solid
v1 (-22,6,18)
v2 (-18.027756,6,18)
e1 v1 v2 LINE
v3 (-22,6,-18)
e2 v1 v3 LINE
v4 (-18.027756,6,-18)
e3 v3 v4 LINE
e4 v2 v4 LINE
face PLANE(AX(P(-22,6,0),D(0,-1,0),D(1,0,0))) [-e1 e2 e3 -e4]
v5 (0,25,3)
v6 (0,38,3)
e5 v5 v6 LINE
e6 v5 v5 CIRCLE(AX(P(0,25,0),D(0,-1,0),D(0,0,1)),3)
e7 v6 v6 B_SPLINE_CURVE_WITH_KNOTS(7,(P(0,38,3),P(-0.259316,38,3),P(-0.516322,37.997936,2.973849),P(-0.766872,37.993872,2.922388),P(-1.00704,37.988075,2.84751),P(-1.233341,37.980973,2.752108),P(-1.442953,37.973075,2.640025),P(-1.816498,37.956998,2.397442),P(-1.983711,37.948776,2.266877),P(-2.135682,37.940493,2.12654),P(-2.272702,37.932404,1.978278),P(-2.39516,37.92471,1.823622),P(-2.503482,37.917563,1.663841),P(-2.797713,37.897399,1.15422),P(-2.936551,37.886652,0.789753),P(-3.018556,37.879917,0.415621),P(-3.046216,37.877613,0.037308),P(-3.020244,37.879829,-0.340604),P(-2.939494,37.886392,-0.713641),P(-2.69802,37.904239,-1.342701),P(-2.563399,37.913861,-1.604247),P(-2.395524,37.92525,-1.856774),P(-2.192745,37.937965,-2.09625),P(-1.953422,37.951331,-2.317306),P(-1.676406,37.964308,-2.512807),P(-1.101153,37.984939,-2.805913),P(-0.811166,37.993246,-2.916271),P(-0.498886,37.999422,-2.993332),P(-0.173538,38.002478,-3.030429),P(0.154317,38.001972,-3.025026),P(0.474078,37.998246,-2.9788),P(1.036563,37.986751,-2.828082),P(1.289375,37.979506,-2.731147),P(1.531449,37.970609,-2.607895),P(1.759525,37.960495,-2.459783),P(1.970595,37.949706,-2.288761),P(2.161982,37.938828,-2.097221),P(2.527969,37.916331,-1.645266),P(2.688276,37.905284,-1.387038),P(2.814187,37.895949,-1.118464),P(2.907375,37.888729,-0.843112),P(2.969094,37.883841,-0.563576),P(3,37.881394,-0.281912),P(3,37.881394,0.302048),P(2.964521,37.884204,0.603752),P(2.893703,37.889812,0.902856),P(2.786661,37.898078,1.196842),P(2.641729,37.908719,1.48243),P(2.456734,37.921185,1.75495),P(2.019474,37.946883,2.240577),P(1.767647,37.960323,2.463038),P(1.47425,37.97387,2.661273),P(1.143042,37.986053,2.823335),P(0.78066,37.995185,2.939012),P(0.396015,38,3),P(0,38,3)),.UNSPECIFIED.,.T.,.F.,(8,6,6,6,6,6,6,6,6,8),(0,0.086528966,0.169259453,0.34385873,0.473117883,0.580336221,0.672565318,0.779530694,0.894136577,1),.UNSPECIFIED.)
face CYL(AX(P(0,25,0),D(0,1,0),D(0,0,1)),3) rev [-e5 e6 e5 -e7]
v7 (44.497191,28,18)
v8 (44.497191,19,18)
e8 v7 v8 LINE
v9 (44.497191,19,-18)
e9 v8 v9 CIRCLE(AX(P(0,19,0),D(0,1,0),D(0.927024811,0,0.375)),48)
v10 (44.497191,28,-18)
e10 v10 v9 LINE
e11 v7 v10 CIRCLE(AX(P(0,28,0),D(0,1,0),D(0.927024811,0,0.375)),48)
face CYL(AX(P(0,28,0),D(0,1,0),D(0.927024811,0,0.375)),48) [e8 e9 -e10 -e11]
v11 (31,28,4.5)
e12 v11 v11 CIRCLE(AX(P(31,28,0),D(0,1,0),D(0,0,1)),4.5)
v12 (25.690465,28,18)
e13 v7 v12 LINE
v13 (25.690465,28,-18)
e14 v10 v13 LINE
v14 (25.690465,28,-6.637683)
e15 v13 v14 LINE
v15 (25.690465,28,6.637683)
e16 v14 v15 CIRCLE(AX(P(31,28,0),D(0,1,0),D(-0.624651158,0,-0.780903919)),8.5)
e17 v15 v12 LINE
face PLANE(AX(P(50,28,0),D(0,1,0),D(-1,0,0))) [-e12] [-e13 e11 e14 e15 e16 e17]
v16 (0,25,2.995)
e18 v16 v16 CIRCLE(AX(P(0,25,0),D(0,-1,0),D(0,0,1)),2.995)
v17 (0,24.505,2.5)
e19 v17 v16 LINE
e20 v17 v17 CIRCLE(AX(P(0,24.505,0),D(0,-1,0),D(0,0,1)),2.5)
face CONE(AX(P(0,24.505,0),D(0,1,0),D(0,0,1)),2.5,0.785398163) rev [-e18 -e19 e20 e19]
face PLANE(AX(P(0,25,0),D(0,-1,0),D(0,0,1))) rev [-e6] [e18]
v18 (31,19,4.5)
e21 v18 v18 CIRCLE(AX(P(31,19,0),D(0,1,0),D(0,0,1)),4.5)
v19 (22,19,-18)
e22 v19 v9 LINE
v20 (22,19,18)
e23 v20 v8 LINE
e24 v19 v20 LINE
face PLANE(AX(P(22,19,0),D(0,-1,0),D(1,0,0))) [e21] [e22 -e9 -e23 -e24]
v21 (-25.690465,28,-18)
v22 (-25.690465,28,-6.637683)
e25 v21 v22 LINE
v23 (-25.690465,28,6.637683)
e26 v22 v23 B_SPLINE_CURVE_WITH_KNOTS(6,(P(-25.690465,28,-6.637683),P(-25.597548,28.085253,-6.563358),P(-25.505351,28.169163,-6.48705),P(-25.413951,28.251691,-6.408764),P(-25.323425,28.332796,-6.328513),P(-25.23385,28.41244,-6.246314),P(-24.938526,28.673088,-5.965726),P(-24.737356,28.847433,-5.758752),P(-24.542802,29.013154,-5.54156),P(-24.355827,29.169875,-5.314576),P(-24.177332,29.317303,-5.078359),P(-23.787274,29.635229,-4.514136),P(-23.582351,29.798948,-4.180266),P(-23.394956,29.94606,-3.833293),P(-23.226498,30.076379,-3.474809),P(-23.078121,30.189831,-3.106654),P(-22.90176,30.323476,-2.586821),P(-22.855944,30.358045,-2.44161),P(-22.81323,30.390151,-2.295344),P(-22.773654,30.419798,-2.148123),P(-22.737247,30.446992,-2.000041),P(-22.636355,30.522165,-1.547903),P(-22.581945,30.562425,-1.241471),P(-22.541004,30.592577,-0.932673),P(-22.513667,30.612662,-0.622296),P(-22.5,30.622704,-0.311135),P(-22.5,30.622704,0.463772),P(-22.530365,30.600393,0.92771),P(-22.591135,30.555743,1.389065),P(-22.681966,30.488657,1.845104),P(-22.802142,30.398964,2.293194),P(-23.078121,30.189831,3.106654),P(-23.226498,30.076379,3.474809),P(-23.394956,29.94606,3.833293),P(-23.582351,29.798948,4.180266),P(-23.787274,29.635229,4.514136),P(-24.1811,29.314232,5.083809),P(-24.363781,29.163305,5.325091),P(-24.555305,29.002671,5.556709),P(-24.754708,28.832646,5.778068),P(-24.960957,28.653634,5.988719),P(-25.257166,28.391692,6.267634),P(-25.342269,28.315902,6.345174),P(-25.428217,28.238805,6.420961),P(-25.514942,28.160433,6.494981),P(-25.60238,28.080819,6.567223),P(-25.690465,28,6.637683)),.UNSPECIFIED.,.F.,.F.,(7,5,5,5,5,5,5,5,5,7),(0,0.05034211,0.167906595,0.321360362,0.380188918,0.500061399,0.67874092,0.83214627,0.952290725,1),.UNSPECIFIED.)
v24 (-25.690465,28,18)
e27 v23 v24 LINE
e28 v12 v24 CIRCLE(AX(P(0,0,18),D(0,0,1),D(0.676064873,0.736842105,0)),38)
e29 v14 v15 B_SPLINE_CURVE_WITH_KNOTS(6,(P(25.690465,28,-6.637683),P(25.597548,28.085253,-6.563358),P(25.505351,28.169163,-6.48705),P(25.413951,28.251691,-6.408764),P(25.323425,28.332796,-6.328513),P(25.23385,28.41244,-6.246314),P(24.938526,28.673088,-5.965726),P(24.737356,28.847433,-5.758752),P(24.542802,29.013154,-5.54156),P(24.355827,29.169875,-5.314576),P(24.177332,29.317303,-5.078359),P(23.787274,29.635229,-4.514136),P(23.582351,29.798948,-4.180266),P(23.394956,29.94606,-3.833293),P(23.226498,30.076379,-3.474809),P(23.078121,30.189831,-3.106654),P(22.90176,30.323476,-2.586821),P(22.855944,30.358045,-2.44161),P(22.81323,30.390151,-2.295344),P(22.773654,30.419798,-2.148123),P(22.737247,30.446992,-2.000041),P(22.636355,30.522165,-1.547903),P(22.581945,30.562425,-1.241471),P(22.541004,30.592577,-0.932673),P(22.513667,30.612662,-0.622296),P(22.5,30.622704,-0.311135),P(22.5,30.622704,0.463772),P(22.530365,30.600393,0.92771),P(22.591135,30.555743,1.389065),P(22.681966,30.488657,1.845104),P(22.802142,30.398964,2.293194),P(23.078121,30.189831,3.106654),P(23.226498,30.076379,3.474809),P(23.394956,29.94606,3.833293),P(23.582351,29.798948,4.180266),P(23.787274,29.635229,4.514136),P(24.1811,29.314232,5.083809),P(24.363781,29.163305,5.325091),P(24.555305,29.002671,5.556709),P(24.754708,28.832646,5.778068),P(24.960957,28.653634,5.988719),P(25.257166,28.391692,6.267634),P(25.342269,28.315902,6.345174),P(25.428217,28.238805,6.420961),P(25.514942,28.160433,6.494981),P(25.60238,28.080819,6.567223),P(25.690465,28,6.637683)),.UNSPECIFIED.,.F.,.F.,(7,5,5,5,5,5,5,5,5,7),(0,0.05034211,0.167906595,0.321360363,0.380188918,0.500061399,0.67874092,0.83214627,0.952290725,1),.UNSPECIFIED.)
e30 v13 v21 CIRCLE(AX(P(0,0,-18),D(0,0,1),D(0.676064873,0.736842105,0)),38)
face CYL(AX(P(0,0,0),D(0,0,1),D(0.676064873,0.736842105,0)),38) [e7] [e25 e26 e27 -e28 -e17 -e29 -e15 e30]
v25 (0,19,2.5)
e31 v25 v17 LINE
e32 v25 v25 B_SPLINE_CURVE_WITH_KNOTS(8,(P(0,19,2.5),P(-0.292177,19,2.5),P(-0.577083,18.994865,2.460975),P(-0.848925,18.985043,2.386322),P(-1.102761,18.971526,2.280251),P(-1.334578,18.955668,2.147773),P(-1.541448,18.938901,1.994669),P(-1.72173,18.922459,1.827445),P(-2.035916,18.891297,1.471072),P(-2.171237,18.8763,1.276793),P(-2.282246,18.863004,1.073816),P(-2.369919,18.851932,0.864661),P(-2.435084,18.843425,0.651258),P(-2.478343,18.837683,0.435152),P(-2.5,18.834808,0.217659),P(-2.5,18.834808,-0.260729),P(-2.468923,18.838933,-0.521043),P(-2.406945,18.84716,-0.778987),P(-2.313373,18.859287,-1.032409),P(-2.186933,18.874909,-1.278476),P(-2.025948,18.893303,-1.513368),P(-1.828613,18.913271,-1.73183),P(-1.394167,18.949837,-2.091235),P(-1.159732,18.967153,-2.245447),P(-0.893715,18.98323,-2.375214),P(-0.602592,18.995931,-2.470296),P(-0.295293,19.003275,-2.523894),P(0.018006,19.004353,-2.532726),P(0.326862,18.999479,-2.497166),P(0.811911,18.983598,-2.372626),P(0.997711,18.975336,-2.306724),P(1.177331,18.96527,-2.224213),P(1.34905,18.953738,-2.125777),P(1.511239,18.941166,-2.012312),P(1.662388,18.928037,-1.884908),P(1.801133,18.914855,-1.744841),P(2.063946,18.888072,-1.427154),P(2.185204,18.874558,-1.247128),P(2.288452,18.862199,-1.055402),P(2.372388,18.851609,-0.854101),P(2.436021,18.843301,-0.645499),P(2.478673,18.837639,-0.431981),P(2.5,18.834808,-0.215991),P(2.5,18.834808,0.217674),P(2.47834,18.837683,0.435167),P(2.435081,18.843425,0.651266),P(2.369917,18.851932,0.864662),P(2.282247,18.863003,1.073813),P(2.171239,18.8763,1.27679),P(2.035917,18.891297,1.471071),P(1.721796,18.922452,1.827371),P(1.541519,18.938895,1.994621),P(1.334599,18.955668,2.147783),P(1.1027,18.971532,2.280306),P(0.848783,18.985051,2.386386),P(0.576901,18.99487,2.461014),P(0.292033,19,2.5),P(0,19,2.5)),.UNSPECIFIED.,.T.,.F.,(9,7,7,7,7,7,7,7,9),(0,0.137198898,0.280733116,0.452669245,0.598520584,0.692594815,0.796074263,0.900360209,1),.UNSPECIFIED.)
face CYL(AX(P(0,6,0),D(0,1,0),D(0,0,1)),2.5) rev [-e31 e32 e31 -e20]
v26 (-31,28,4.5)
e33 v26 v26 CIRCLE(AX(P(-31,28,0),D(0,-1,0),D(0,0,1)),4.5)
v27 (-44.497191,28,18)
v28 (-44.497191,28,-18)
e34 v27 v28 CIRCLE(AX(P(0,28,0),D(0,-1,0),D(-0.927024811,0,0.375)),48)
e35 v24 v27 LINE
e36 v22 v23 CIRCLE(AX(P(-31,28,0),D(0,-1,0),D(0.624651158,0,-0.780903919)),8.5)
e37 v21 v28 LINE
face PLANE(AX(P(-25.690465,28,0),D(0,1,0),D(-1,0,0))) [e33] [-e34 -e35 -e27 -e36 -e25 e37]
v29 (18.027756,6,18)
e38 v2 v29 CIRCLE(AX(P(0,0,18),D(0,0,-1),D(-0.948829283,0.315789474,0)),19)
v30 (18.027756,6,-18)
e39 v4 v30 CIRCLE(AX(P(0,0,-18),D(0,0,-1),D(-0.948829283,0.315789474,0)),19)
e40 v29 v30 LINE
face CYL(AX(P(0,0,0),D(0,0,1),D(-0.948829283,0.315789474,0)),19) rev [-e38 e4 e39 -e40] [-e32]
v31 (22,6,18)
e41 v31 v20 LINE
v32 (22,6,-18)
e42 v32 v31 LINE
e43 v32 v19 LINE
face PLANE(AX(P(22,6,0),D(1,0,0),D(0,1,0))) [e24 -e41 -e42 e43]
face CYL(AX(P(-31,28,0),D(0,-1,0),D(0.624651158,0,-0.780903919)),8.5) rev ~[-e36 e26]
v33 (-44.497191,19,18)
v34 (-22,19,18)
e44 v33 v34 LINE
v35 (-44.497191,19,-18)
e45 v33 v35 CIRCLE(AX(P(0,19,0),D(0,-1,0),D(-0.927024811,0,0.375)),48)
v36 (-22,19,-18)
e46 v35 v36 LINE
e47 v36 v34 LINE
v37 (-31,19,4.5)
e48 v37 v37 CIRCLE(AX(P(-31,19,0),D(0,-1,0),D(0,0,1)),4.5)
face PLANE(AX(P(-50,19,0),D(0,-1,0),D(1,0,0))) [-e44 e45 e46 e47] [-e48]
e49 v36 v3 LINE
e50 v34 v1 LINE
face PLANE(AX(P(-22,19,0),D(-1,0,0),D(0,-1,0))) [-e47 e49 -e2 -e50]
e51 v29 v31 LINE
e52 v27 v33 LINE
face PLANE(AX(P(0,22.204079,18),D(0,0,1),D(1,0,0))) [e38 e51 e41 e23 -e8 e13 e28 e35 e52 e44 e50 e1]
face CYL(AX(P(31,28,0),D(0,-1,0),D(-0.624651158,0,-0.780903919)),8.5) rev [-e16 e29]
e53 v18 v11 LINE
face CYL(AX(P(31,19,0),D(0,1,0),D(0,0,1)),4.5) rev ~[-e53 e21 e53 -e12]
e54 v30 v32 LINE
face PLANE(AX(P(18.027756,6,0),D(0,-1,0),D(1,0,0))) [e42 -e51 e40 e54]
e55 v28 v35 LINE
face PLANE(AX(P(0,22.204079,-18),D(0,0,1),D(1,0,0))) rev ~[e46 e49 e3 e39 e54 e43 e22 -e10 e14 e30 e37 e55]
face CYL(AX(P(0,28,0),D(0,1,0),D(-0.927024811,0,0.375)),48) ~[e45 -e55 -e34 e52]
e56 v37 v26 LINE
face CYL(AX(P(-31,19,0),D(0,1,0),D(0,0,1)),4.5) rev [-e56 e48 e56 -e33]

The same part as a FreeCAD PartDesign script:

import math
import FreeCAD as App
import Part
import Sketcher
from FreeCAD import Vector
Q = App.Units.Quantity

doc = App.newDocument("Part")
body = doc.addObject("PartDesign::Body", "Body")

# Sketch on XY plane
sketch1 = doc.addObject("Sketcher::SketchObject", "Sketch")
body.addObject(sketch1)
sketch1.AttachmentSupport = (doc.XY_Plane, [""])
sketch1.MapMode = "FlatFace"
sketch1.addGeometry([
    Part.LineSegment(Vector(18.027756, 6, 0), Vector(22, 6, 0)),  # 0
    Part.LineSegment(Vector(22, 6, 0), Vector(22, 19, 0)),  # 1
    Part.LineSegment(Vector(22, 19, 0), Vector(50, 19, 0)),  # 2
    Part.LineSegment(Vector(50, 19, 0), Vector(50, 28, 0)),  # 3
    Part.LineSegment(Vector(50, 28, 0), Vector(25.690465, 28, 0)),  # 4
    Part.ArcOfCircle(Part.Circle(Vector(0, 0, 0), Vector(0, 0, 1), 38), math.radians(47.463102), math.radians(132.536898)),  # 5
    Part.LineSegment(Vector(-25.690465, 28, 0), Vector(-50, 28, 0)),  # 6
    Part.LineSegment(Vector(-50, 28, 0), Vector(-50, 19, 0)),  # 7
    Part.LineSegment(Vector(-50, 19, 0), Vector(-22, 19, 0)),  # 8
    Part.LineSegment(Vector(-22, 19, 0), Vector(-22, 6, 0)),  # 9
    Part.LineSegment(Vector(-22, 6, 0), Vector(-18.027756, 6, 0)),  # 10
    Part.ArcOfCircle(Part.Circle(Vector(0, 0, 0), Vector(0, 0, 1), 19), math.radians(18.40848), math.radians(161.59152)),  # 11
], False)
sketch1.addConstraint([
    Sketcher.Constraint("Coincident", 0, 2, 1, 1),
    Sketcher.Constraint("Coincident", 1, 2, 2, 1),
    Sketcher.Constraint("Coincident", 2, 2, 3, 1),
    Sketcher.Constraint("Coincident", 3, 2, 4, 1),
    Sketcher.Constraint("Coincident", 4, 2, 5, 1),
    Sketcher.Constraint("Coincident", 5, 2, 6, 1),
    Sketcher.Constraint("Coincident", 6, 2, 7, 1),
    Sketcher.Constraint("Coincident", 7, 2, 8, 1),
    Sketcher.Constraint("Coincident", 8, 2, 9, 1),
    Sketcher.Constraint("Coincident", 9, 2, 10, 1),
    Sketcher.Constraint("Coincident", 10, 2, 11, 2),
    Sketcher.Constraint("Coincident", 11, 1, 0, 1),
    Sketcher.Constraint("Horizontal", 0),
    Sketcher.Constraint("Vertical", 1),
    Sketcher.Constraint("Horizontal", 2),
    Sketcher.Constraint("Vertical", 3),
    Sketcher.Constraint("Horizontal", 4),
    Sketcher.Constraint("Horizontal", 6),
    Sketcher.Constraint("Vertical", 7),
    Sketcher.Constraint("Horizontal", 8),
    Sketcher.Constraint("Vertical", 9),
    Sketcher.Constraint("Horizontal", 10),
    Sketcher.Constraint("Coincident", 5, 3, -1, 1),
    Sketcher.Constraint("Coincident", 11, 3, -1, 1),
    Sketcher.Constraint("Symmetric", 3, 2, 6, 2, -2),
    Sketcher.Constraint("Symmetric", 1, 2, 8, 2, -2),
    Sketcher.Constraint("Horizontal", 0, 2, 9, 2),
    Sketcher.Constraint("Radius", 5, Q("38 mm")),
    Sketcher.Constraint("Radius", 11, Q("19 mm")),
    Sketcher.Constraint("DistanceX", 2, 1, 2, 2, Q("28 mm")),
    Sketcher.Constraint("DistanceY", 1, 1, 1, 2, Q("13 mm")),
    Sketcher.Constraint("DistanceY", 3, 1, 3, 2, Q("9 mm")),
    Sketcher.Constraint("DistanceX", -1, 1, 0, 2, Q("22 mm")),
    Sketcher.Constraint("DistanceY", -1, 1, 0, 2, Q("6 mm")),
])
pad1 = doc.addObject("PartDesign::Pad", "Pad")
body.addObject(pad1)
pad1.Profile = sketch1
pad1.Length = 36
pad1.Midplane = True

# Sketch on XZ plane
sketch2 = doc.addObject("Sketcher::SketchObject", "Sketch001")
body.addObject(sketch2)
sketch2.AttachmentSupport = (doc.XZ_Plane, [""])
sketch2.MapMode = "FlatFace"
sketch2.AttachmentOffset = App.Placement(Vector(0, 0, -28), App.Rotation())
sketch2.addGeometry([
    Part.LineSegment(Vector(-44.497191, -18, 0), Vector(-50, -18, 0)),
    Part.LineSegment(Vector(-50, -18, 0), Vector(-50, 18, 0)),
    Part.LineSegment(Vector(-50, 18, 0), Vector(-44.497191, 18, 0)),
    Part.ArcOfCircle(Part.Circle(Vector(0, 0, 0), Vector(0, 0, 1), 48), math.radians(157.975687), math.radians(202.024313)),
], False)
sketch2.addConstraint([
    Sketcher.Constraint("Coincident", 0, 2, 1, 1),
    Sketcher.Constraint("Coincident", 1, 2, 2, 1),
    Sketcher.Constraint("Coincident", 2, 2, 3, 1),
    Sketcher.Constraint("Coincident", 3, 2, 0, 1),
    Sketcher.Constraint("Horizontal", 0),
    Sketcher.Constraint("Vertical", 1),
    Sketcher.Constraint("Horizontal", 2),
    Sketcher.Constraint("Coincident", 3, 3, -1, 1),
    Sketcher.Constraint("Vertical", 2, 2, 3, 2),
    Sketcher.Constraint("Radius", 3, Q("48 mm")),
    Sketcher.Constraint("DistanceY", 1, 1, 1, 2, Q("36 mm")),
    Sketcher.Constraint("DistanceX", 0, 2, -1, 1, Q("50 mm")),
])
pocket1 = doc.addObject("PartDesign::Pocket", "Pocket")
body.addObject(pocket1)
pocket1.Profile = sketch2
pocket1.Length = 9
pocket1.Reversed = True

# Sketch on YZ plane
sketch3 = doc.addObject("Sketcher::SketchObject", "Sketch002")
body.addObject(sketch3)
sketch3.AttachmentSupport = (doc.YZ_Plane, [""])
sketch3.MapMode = "FlatFace"
sketch3.AttachmentOffset = App.Placement(Vector(0, 0, -31), App.Rotation())
sketch3.addGeometry([
    Part.LineSegment(Vector(16.296127, 0, 0), Vector(28, 0, 0)),
    Part.LineSegment(Vector(28, 0, 0), Vector(28, 4.5, 0)),
    Part.LineSegment(Vector(28, 4.5, 0), Vector(19, 4.5, 0)),
    Part.LineSegment(Vector(19, 4.5, 0), Vector(16.296127, 0, 0)),
], False)
sketch3.addConstraint([
    Sketcher.Constraint("Coincident", 0, 2, 1, 1),
    Sketcher.Constraint("Coincident", 1, 2, 2, 1),
    Sketcher.Constraint("Coincident", 2, 2, 3, 1),
    Sketcher.Constraint("Coincident", 3, 2, 0, 1),
    Sketcher.Constraint("Horizontal", 0),
    Sketcher.Constraint("Vertical", 1),
    Sketcher.Constraint("Horizontal", 2),
    Sketcher.Constraint("PointOnObject", 0, 2, -1),
    Sketcher.Constraint("DistanceX", 2, 2, 2, 1, Q("9 mm")),
    Sketcher.Constraint("Angle", 3, Q("-121 deg")),
    Sketcher.Constraint("DistanceY", 1, 1, 1, 2, Q("4.5 mm")),
    Sketcher.Constraint("DistanceX", -1, 1, 0, 2, Q("28 mm")),
])
groove = doc.addObject("PartDesign::Groove", "Groove")
body.addObject(groove)
groove.Profile = sketch3
groove.ReferenceAxis = (sketch3, ["H_Axis"])
groove.Angle = 360

# Sketch on XZ plane
sketch4 = doc.addObject("Sketcher::SketchObject", "Sketch003")
body.addObject(sketch4)
sketch4.AttachmentSupport = (doc.XZ_Plane, [""])
sketch4.MapMode = "FlatFace"
sketch4.AttachmentOffset = App.Placement(Vector(0, 0, -28), App.Rotation())
sketch4.addGeometry([
    Part.LineSegment(Vector(-25.690465, -6.637683, 0), Vector(-25.690465, 6.637683, 0)),
    Part.ArcOfCircle(Part.Circle(Vector(-31, 0, 0), Vector(0, 0, 1), 8.5), math.radians(-51.343412), math.radians(51.343412)),
], False)
sketch4.addConstraint([
    Sketcher.Constraint("Coincident", 0, 1, 1, 1),
    Sketcher.Constraint("Coincident", 1, 2, 0, 2),
    Sketcher.Constraint("Vertical", 0),
    Sketcher.Constraint("PointOnObject", 1, 3, -1),
    Sketcher.Constraint("Radius", 1, Q("8.5 mm")),
    Sketcher.Constraint("DistanceX", 1, 3, -1, 1, Q("31 mm")),
    Sketcher.Constraint("DistanceY", 0, 1, 0, 2, Q("13.275367 mm")),
])
pocket2 = doc.addObject("PartDesign::Pocket", "Pocket001")
body.addObject(pocket2)
pocket2.Profile = sketch4
pocket2.Type = "ThroughAll"
doc.recompute()

mirrored = doc.addObject("PartDesign::Mirrored", "Mirrored")
body.addObject(mirrored)
mirrored.Originals = [groove, pocket2]
mirrored.MirrorPlane = (doc.YZ_Plane, [""])
body.Tip = mirrored

# Sketch on YZ plane
sketch5 = doc.addObject("Sketcher::SketchObject", "Sketch004")
body.addObject(sketch5)
sketch5.AttachmentSupport = (doc.YZ_Plane, [""])
sketch5.MapMode = "FlatFace"
sketch5.addGeometry([
    Part.LineSegment(Vector(6, 0, 0), Vector(38, 0, 0)),  # 0
    Part.LineSegment(Vector(38, 0, 0), Vector(38, 3, 0)),  # 1
    Part.LineSegment(Vector(38, 3, 0), Vector(25, 3, 0)),  # 2
    Part.LineSegment(Vector(25, 3, 0), Vector(25, 2.995, 0)),  # 3
    Part.LineSegment(Vector(25, 2.995, 0), Vector(24.505, 2.5, 0)),  # 4
    Part.LineSegment(Vector(24.505, 2.5, 0), Vector(6, 2.5, 0)),  # 5
    Part.LineSegment(Vector(6, 2.5, 0), Vector(6, 0, 0)),  # 6
], False)
sketch5.addConstraint([
    Sketcher.Constraint("Coincident", 0, 2, 1, 1),
    Sketcher.Constraint("Coincident", 1, 2, 2, 1),
    Sketcher.Constraint("Coincident", 2, 2, 3, 1),
    Sketcher.Constraint("Coincident", 3, 2, 4, 1),
    Sketcher.Constraint("Coincident", 4, 2, 5, 1),
    Sketcher.Constraint("Coincident", 5, 2, 6, 1),
    Sketcher.Constraint("Coincident", 6, 2, 0, 1),
    Sketcher.Constraint("Horizontal", 0),
    Sketcher.Constraint("Vertical", 1),
    Sketcher.Constraint("Horizontal", 2),
    Sketcher.Constraint("Vertical", 3),
    Sketcher.Constraint("Horizontal", 5),
    Sketcher.Constraint("Vertical", 6),
    Sketcher.Constraint("PointOnObject", 0, 2, -1),
    Sketcher.Constraint("DistanceX", 0, 1, 0, 2, Q("32 mm")),
    Sketcher.Constraint("DistanceX", 2, 2, 2, 1, Q("13 mm")),
    Sketcher.Constraint("DistanceY", 1, 1, 1, 2, Q("3 mm")),
    Sketcher.Constraint("Angle", 4, Q("-135 deg")),
    Sketcher.Constraint("DistanceY", 6, 2, 6, 1, Q("2.5 mm")),
    Sketcher.Constraint("DistanceX", -1, 1, 0, 2, Q("38 mm")),
    Sketcher.Constraint("DistanceX", 5, 2, 5, 1, Q("18.505 mm")),
])
groove2 = doc.addObject("PartDesign::Groove", "Groove001")
body.addObject(groove2)
groove2.Profile = sketch5
groove2.ReferenceAxis = (sketch5, ["H_Axis"])
groove2.Angle = 360
doc.recompute()

mirrored2 = doc.addObject("PartDesign::Mirrored", "Mirrored001")
body.addObject(mirrored2)
mirrored2.Originals = [pocket1]
mirrored2.MirrorPlane = (doc.YZ_Plane, [""])
body.Tip = mirrored2

doc.recompute()
